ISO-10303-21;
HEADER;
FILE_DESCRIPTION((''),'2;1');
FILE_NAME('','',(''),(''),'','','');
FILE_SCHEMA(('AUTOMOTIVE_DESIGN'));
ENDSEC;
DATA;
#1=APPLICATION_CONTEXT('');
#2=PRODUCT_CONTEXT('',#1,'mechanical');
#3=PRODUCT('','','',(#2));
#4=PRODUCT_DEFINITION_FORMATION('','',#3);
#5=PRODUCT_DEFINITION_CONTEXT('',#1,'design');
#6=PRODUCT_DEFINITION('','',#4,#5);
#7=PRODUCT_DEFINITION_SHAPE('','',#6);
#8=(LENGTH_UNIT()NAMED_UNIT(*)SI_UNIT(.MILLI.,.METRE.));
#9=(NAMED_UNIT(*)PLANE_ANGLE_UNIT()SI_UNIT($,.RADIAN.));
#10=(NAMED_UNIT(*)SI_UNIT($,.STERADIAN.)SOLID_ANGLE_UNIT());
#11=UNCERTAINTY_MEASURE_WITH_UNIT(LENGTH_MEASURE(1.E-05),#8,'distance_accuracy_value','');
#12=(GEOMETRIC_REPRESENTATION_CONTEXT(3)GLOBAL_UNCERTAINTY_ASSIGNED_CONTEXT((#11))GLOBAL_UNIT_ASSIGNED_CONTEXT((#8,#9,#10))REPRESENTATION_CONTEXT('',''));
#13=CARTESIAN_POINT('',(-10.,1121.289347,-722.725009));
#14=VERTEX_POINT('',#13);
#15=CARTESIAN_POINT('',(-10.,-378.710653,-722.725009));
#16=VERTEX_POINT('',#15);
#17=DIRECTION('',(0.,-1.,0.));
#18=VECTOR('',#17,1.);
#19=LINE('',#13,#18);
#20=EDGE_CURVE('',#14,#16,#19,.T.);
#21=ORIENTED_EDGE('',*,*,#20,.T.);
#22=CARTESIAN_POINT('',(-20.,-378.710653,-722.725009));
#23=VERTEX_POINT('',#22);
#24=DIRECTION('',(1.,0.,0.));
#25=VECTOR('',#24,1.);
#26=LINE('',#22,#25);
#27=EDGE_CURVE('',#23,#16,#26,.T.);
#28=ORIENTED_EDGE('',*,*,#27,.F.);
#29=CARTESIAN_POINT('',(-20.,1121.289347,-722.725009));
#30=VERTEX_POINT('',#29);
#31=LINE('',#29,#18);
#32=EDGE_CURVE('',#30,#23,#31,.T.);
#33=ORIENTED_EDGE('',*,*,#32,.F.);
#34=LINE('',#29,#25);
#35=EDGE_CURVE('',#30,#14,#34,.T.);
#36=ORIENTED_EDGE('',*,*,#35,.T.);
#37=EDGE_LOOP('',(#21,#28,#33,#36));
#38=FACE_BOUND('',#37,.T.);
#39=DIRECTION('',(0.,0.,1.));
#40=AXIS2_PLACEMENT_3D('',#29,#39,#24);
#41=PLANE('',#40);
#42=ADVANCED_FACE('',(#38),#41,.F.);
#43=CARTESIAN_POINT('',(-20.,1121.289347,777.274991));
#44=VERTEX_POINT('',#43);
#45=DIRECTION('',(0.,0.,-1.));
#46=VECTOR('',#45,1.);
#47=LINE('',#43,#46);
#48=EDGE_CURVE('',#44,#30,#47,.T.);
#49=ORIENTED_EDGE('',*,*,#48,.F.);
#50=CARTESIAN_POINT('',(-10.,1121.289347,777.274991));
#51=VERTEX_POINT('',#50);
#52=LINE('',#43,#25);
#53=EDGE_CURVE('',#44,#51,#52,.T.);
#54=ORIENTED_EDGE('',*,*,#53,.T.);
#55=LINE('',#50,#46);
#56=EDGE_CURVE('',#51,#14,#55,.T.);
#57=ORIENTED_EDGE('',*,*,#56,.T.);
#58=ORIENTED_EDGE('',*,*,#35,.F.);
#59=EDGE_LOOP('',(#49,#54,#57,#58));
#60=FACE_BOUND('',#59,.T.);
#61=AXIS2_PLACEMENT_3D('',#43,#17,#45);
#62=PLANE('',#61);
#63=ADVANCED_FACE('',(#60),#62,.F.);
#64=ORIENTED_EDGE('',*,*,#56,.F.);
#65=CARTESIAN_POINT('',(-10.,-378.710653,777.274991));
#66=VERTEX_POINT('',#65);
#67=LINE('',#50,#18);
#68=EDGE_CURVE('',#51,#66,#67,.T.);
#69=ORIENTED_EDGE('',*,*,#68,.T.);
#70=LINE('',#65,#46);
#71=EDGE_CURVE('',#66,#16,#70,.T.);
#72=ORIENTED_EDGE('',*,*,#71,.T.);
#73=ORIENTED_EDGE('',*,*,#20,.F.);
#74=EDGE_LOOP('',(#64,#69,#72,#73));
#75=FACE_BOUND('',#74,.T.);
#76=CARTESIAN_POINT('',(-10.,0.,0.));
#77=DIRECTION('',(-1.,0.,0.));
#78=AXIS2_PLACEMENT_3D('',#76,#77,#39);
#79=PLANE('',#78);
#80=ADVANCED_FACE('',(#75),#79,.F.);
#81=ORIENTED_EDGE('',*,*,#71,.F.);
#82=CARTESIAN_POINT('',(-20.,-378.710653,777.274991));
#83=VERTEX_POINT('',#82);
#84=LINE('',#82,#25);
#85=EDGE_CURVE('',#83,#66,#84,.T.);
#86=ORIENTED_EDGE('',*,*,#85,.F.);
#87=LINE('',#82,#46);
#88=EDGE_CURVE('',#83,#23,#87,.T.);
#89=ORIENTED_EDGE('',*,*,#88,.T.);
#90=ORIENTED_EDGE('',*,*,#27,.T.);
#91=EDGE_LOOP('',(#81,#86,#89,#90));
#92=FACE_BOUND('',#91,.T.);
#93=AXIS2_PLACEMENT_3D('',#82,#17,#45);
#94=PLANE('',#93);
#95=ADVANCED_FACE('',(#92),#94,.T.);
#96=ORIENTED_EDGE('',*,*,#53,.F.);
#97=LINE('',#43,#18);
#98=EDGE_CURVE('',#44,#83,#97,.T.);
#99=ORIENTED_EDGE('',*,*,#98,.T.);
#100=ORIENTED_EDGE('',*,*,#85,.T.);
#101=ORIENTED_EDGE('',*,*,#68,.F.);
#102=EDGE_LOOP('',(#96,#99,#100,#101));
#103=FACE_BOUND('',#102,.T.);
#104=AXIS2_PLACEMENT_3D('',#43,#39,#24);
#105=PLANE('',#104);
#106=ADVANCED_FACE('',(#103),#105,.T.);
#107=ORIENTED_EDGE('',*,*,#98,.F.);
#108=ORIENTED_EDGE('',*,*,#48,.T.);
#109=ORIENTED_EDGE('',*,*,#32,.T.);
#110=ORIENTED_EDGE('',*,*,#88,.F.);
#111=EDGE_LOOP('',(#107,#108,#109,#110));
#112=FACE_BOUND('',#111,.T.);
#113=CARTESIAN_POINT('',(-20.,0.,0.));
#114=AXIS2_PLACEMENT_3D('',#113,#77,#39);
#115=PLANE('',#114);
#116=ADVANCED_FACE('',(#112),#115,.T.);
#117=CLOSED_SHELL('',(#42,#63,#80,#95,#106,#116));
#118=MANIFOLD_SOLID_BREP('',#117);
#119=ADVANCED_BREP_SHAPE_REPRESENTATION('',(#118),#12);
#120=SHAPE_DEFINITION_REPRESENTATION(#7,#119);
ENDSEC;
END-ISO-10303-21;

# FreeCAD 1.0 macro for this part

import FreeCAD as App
import Part
import Sketcher
from FreeCAD import Vector


def add_polygon(sketch, points):
    """Adds a closed chain of lines whose ends are joined by coincident constraints."""
    first, n = sketch.GeometryCount, len(points)
    for a, b in zip(points, points[1:] + points[:1]):
        sketch.addGeometry(Part.LineSegment(App.Vector(*a, 0), App.Vector(*b, 0)), False)
    for i in range(n):
        sketch.addConstraint(Sketcher.Constraint("Coincident", first + i, 2, first + (i + 1) % n, 1))

doc = App.newDocument("Part")
body = doc.addObject("PartDesign::Body", "Body")

# Sketch on YZ plane
sketch1 = body.newObject("Sketcher::SketchObject", "Sketch")
sketch1.AttachmentSupport = (doc.getObject("YZ_Plane"), [""])
sketch1.MapMode = "FlatFace"
sketch1.AttachmentOffset = App.Placement(Vector(0, 0, -20), App.Rotation())
add_polygon(sketch1, [(1121.289347, -722.725008), (1121.289347, 777.274991), (-378.710653, 777.274991), (-378.710653, -722.725008)])  # lines 0-3
sketch1.addConstraint(Sketcher.Constraint("Vertical", 0))
sketch1.addConstraint(Sketcher.Constraint("Horizontal", 1))
sketch1.addConstraint(Sketcher.Constraint("Vertical", 2))
sketch1.addConstraint(Sketcher.Constraint("Horizontal", 3))
sketch1.addConstraint(Sketcher.Constraint("Equal", 3, 0))
sketch1.addConstraint(Sketcher.Constraint("DistanceX", 1, 2, 1, 1, 1500.0))
sketch1.addConstraint(Sketcher.Constraint("DistanceY", -1, 1, 0, 2, 777.274991))
sketch1.addConstraint(Sketcher.Constraint("DistanceX", -1, 1, 0, 2, 1121.289347))
pad1 = body.newObject("PartDesign::Pad", "Pad")
pad1.Profile = sketch1
pad1.Length = 10

doc.recompute()
